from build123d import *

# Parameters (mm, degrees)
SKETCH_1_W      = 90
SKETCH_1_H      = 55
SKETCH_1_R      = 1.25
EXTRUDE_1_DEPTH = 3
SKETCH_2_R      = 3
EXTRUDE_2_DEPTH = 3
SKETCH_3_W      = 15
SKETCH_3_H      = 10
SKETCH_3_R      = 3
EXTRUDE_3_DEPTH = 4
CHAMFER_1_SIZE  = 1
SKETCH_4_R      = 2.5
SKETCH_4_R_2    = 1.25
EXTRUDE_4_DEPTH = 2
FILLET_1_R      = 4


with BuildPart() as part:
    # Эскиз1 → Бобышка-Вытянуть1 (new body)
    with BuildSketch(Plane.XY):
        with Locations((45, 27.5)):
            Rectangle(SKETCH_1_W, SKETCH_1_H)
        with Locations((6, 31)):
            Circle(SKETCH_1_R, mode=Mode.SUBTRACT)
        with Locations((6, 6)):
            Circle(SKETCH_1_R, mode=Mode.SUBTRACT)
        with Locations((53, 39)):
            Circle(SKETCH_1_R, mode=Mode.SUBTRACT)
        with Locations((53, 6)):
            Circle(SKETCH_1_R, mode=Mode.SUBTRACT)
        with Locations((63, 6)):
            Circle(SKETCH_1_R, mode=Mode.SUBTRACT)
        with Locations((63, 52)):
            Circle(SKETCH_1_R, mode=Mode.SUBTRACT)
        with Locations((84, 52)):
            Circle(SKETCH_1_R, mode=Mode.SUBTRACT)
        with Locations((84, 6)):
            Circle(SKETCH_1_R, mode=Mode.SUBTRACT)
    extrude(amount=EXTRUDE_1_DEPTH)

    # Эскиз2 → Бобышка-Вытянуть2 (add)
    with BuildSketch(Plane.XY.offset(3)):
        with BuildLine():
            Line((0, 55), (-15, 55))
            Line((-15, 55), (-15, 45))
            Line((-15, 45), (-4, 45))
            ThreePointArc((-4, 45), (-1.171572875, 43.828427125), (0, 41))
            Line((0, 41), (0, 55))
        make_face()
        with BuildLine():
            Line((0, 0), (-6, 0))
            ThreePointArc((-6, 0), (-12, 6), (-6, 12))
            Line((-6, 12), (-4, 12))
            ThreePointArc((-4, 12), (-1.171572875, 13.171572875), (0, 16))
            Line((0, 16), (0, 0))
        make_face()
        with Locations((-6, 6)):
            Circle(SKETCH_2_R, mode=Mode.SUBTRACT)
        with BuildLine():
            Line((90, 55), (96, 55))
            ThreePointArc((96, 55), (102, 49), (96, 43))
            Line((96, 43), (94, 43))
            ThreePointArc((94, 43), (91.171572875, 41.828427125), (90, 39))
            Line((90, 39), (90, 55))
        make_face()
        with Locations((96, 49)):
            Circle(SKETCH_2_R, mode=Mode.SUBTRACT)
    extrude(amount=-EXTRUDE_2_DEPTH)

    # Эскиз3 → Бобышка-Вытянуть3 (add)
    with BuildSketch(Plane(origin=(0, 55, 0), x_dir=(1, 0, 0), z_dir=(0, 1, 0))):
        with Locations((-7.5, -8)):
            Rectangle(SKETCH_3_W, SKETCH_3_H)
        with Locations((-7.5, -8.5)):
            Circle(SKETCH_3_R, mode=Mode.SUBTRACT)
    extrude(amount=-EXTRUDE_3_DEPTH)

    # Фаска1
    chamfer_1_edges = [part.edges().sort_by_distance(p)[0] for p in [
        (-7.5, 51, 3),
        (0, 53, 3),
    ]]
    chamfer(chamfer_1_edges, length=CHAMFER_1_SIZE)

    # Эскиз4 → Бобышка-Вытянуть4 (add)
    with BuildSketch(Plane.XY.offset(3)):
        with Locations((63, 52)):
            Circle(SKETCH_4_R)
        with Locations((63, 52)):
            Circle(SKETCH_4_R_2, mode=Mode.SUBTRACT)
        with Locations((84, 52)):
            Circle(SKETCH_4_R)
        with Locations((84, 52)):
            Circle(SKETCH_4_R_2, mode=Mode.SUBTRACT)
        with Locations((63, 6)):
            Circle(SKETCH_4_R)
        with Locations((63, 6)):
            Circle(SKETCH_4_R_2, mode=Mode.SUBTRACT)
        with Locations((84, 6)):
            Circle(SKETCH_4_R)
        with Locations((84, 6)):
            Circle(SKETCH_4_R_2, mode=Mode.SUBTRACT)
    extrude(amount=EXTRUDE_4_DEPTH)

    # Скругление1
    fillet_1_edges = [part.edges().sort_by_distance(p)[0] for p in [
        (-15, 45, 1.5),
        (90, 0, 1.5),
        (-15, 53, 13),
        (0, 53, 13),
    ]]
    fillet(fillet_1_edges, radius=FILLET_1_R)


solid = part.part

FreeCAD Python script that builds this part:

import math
import FreeCAD as App
import Part
import Sketcher

V = App.Vector
Q = App.Units.Quantity


def edges_at(feature, points):
    """Names of the edges that pass closest to the given points."""
    edges = feature.Shape.Edges
    near = lambda p: min(range(len(edges)), key=lambda i: edges[i].distToShape(Part.Vertex(*p))[0])
    return sorted({f"Edge{near(p) + 1}" for p in points})

doc = App.newDocument("Part")
params = doc.addObject("Spreadsheet::Sheet", "Params")
for row, (alias, value) in enumerate([
    ("sketch1_diameter", "2.5 mm"),
    ("sketch1_width", "90 mm"),
    ("sketch1_height", "55 mm"),
    ("pad1_length", "3 mm"),
    ("sketch2_diameter", "6 mm"),
    ("sketch2_radius", "4 mm"),
    ("sketch2_radius2", "6 mm"),
    ("sketch2_width", "15 mm"),
    ("sketch2_width2", "6 mm"),
    ("pad2_length", "3 mm"),
    ("sketch3_diameter", "6 mm"),
    ("sketch3_width", "15 mm"),
    ("sketch3_height", "10 mm"),
    ("pad3_length", "4 mm"),
    ("chamfer_size", "1 mm"),
    ("sketch4_diameter", "5 mm"),
    ("sketch4_diameter2", "2.5 mm"),
    ("pad4_length", "2 mm"),
    ("fillet_radius", "4 mm"),
], start=1):
    params.set(f"A{row}", alias)
    params.set(f"B{row}", "=" + value)
    params.setAlias(f"B{row}", alias)

body = doc.addObject("PartDesign::Body", "Body")

# Sketch on XY plane
sketch1 = body.newObject("Sketcher::SketchObject", "Sketch")
sketch1.AttachmentSupport = (doc.getObject("XY_Plane"), [""])
sketch1.MapMode = "FlatFace"
sketch1.addGeometry(Part.LineSegment(V(0, 55, 0), V(0, 0, 0)), False)
sketch1.addGeometry(Part.LineSegment(V(0, 0, 0), V(90, 0, 0)), False)
sketch1.addGeometry(Part.LineSegment(V(90, 0, 0), V(90, 55, 0)), False)
sketch1.addGeometry(Part.LineSegment(V(90, 55, 0), V(0, 55, 0)), False)
sketch1.addGeometry(Part.Circle(V(6, 6, 0), V(0, 0, 1), 1.25), False)
sketch1.addGeometry(Part.Circle(V(53, 6, 0), V(0, 0, 1), 1.25), False)
sketch1.addGeometry(Part.Circle(V(63, 6, 0), V(0, 0, 1), 1.25), False)
sketch1.addGeometry(Part.Circle(V(84, 6, 0), V(0, 0, 1), 1.25), False)
sketch1.addGeometry(Part.Circle(V(6, 31, 0), V(0, 0, 1), 1.25), False)
sketch1.addGeometry(Part.Circle(V(53, 39, 0), V(0, 0, 1), 1.25), False)
sketch1.addGeometry(Part.Circle(V(63, 52, 0), V(0, 0, 1), 1.25), False)
sketch1.addGeometry(Part.Circle(V(84, 52, 0), V(0, 0, 1), 1.25), False)
sketch1.addConstraint(Sketcher.Constraint("Coincident", 0, 2, 1, 1))
sketch1.addConstraint(Sketcher.Constraint("Coincident", 1, 2, 2, 1))
sketch1.addConstraint(Sketcher.Constraint("Coincident", 2, 2, 3, 1))
sketch1.addConstraint(Sketcher.Constraint("Coincident", 3, 2, 0, 1))
sketch1.addConstraint(Sketcher.Constraint("Vertical", 0))
sketch1.addConstraint(Sketcher.Constraint("Horizontal", 1))
sketch1.addConstraint(Sketcher.Constraint("Vertical", 2))
sketch1.addConstraint(Sketcher.Constraint("Horizontal", 3))
sketch1.addConstraint(Sketcher.Constraint("Coincident", 0, 2, -1, 1))
sketch1.addConstraint(Sketcher.Constraint("Equal", 4, 5))
sketch1.addConstraint(Sketcher.Constraint("Equal", 5, 6))
sketch1.addConstraint(Sketcher.Constraint("Equal", 6, 7))
sketch1.addConstraint(Sketcher.Constraint("Equal", 7, 8))
sketch1.addConstraint(Sketcher.Constraint("Equal", 8, 9))
sketch1.addConstraint(Sketcher.Constraint("Equal", 9, 10))
sketch1.addConstraint(Sketcher.Constraint("Equal", 10, 11))
sketch1.addConstraint(Sketcher.Constraint("Horizontal", 4, 3, 5, 3))
sketch1.addConstraint(Sketcher.Constraint("Horizontal", 5, 3, 6, 3))
sketch1.addConstraint(Sketcher.Constraint("Horizontal", 6, 3, 7, 3))
sketch1.addConstraint(Sketcher.Constraint("Horizontal", 10, 3, 11, 3))
sketch1.addConstraint(Sketcher.Constraint("Vertical", 4, 3, 8, 3))
sketch1.addConstraint(Sketcher.Constraint("Vertical", 5, 3, 9, 3))
sketch1.addConstraint(Sketcher.Constraint("Vertical", 6, 3, 10, 3))
sketch1.addConstraint(Sketcher.Constraint("Vertical", 7, 3, 11, 3))
sketch1.addConstraint(Sketcher.Constraint("Diameter", 4, Q("2.5 mm")))
sketch1.addConstraint(Sketcher.Constraint("DistanceX", 1, 1, 1, 2, Q("90 mm")))
sketch1.addConstraint(Sketcher.Constraint("DistanceY", 0, 2, 0, 1, Q("55 mm")))
sketch1.addConstraint(Sketcher.Constraint("DistanceX", -1, 1, 4, 3, Q("6 mm")))
sketch1.addConstraint(Sketcher.Constraint("DistanceY", -1, 1, 4, 3, Q("6 mm")))
sketch1.addConstraint(Sketcher.Constraint("DistanceX", -1, 1, 5, 3, Q("53 mm")))
sketch1.addConstraint(Sketcher.Constraint("DistanceX", -1, 1, 6, 3, Q("63 mm")))
sketch1.addConstraint(Sketcher.Constraint("DistanceX", -1, 1, 7, 3, Q("84 mm")))
sketch1.addConstraint(Sketcher.Constraint("DistanceY", -1, 1, 8, 3, Q("31 mm")))
sketch1.addConstraint(Sketcher.Constraint("DistanceY", -1, 1, 9, 3, Q("39 mm")))
sketch1.addConstraint(Sketcher.Constraint("DistanceY", -1, 1, 10, 3, Q("52 mm")))
sketch1.setExpression("Constraints[24]", "Params.sketch1_diameter")
sketch1.setExpression("Constraints[25]", "Params.sketch1_width")
sketch1.setExpression("Constraints[26]", "Params.sketch1_height")
pad1 = body.newObject("PartDesign::Pad", "Pad")
pad1.Profile = sketch1
pad1.setExpression("Length", "Params.pad1_length")

# Sketch on XY plane
sketch2 = body.newObject("Sketcher::SketchObject", "Sketch001")
sketch2.AttachmentSupport = (doc.getObject("XY_Plane"), [""])
sketch2.MapMode = "FlatFace"
sketch2.AttachmentOffset = App.Placement(V(0, 0, 3), App.Rotation())
sketch2.addGeometry(Part.LineSegment(V(0, 55, 0), V(-15, 55, 0)), False)
sketch2.addGeometry(Part.LineSegment(V(-15, 55, 0), V(-15, 45, 0)), False)
sketch2.addGeometry(Part.LineSegment(V(-15, 45, 0), V(-4, 45, 0)), False)
sketch2.addGeometry(Part.ArcOfCircle(Part.Circle(V(-4, 41, 0), V(0, 0, 1), 4), math.radians(0), math.radians(90)), False)
sketch2.addGeometry(Part.LineSegment(V(0, 41, 0), V(0, 55, 0)), False)
sketch2.addGeometry(Part.LineSegment(V(-6, 0, 0), V(0, 0, 0)), False)
sketch2.addGeometry(Part.LineSegment(V(0, 0, 0), V(0, 16, 0)), False)
sketch2.addGeometry(Part.ArcOfCircle(Part.Circle(V(-4, 16, 0), V(0, 0, 1), 4), math.radians(-90), math.radians(0)), False)
sketch2.addGeometry(Part.LineSegment(V(-4, 12, 0), V(-6, 12, 0)), False)
sketch2.addGeometry(Part.ArcOfCircle(Part.Circle(V(-6, 6, 0), V(0, 0, 1), 6), math.radians(90), math.radians(270)), False)
sketch2.addGeometry(Part.Circle(V(-6, 6, 0), V(0, 0, 1), 3), False)
sketch2.addGeometry(Part.LineSegment(V(96, 55, 0), V(90, 55, 0)), False)
sketch2.addGeometry(Part.LineSegment(V(90, 55, 0), V(90, 39, 0)), False)
sketch2.addGeometry(Part.ArcOfCircle(Part.Circle(V(94, 39, 0), V(0, 0, 1), 4), math.radians(90), math.radians(180)), False)
sketch2.addGeometry(Part.LineSegment(V(94, 43, 0), V(96, 43, 0)), False)
sketch2.addGeometry(Part.ArcOfCircle(Part.Circle(V(96, 49, 0), V(0, 0, 1), 6), math.radians(-90), math.radians(90)), False)
sketch2.addGeometry(Part.Circle(V(96, 49, 0), V(0, 0, 1), 3), False)
sketch2.addConstraint(Sketcher.Constraint("Coincident", 0, 2, 1, 1))
sketch2.addConstraint(Sketcher.Constraint("Coincident", 1, 2, 2, 1))
sketch2.addConstraint(Sketcher.Constraint("Tangent", 2, 2, 3, 2))
sketch2.addConstraint(Sketcher.Constraint("Tangent", 3, 1, 4, 1))
sketch2.addConstraint(Sketcher.Constraint("Coincident", 4, 2, 0, 1))
sketch2.addConstraint(Sketcher.Constraint("Coincident", 5, 2, 6, 1))
sketch2.addConstraint(Sketcher.Constraint("Tangent", 6, 2, 7, 2))
sketch2.addConstraint(Sketcher.Constraint("Tangent", 7, 1, 8, 1))
sketch2.addConstraint(Sketcher.Constraint("Tangent", 8, 2, 9, 1))
sketch2.addConstraint(Sketcher.Constraint("Tangent", 9, 2, 5, 1))
sketch2.addConstraint(Sketcher.Constraint("Coincident", 11, 2, 12, 1))
sketch2.addConstraint(Sketcher.Constraint("Tangent", 12, 2, 13, 2))
sketch2.addConstraint(Sketcher.Constraint("Tangent", 13, 1, 14, 1))
sketch2.addConstraint(Sketcher.Constraint("Tangent", 14, 2, 15, 1))
sketch2.addConstraint(Sketcher.Constraint("Tangent", 15, 2, 11, 1))
sketch2.addConstraint(Sketcher.Constraint("Horizontal", 0))
sketch2.addConstraint(Sketcher.Constraint("Vertical", 1))
sketch2.addConstraint(Sketcher.Constraint("Horizontal", 2))
sketch2.addConstraint(Sketcher.Constraint("Vertical", 4))
sketch2.addConstraint(Sketcher.Constraint("Horizontal", 5))
sketch2.addConstraint(Sketcher.Constraint("Vertical", 6))
sketch2.addConstraint(Sketcher.Constraint("Horizontal", 8))
sketch2.addConstraint(Sketcher.Constraint("Horizontal", 11))
sketch2.addConstraint(Sketcher.Constraint("Vertical", 12))
sketch2.addConstraint(Sketcher.Constraint("Horizontal", 14))
sketch2.addConstraint(Sketcher.Constraint("Coincident", 5, 2, -1, 1))
sketch2.addConstraint(Sketcher.Constraint("Coincident", 10, 3, 9, 3))
sketch2.addConstraint(Sketcher.Constraint("Coincident", 16, 3, 15, 3))
sketch2.addConstraint(Sketcher.Constraint("Equal", 3, 7))
sketch2.addConstraint(Sketcher.Constraint("Equal", 7, 13))
sketch2.addConstraint(Sketcher.Constraint("Equal", 9, 15))
sketch2.addConstraint(Sketcher.Constraint("Equal", 10, 16))
sketch2.addConstraint(Sketcher.Constraint("PointOnObject", 3, 1, -2))
sketch2.addConstraint(Sketcher.Constraint("Horizontal", 4, 2, 11, 2))
sketch2.addConstraint(Sketcher.Constraint("Equal", 5, 11))
sketch2.addConstraint(Sketcher.Constraint("Diameter", 10, Q("6 mm")))
sketch2.addConstraint(Sketcher.Constraint("Radius", 3, Q("4 mm")))
sketch2.addConstraint(Sketcher.Constraint("Radius", 9, Q("6 mm")))
sketch2.addConstraint(Sketcher.Constraint("DistanceX", 0, 2, 0, 1, Q("15 mm")))
sketch2.addConstraint(Sketcher.Constraint("DistanceX", 5, 1, 5, 2, Q("6 mm")))
sketch2.addConstraint(Sketcher.Constraint("DistanceY", 1, 2, 1, 1, Q("10 mm")))
sketch2.addConstraint(Sketcher.Constraint("DistanceY", -1, 1, 3, 3, Q("41 mm")))
sketch2.addConstraint(Sketcher.Constraint("DistanceX", -1, 1, 13, 3, Q("94 mm")))
sketch2.setExpression("Constraints[35]", "Params.sketch2_diameter")
sketch2.setExpression("Constraints[36]", "Params.sketch2_radius")
sketch2.setExpression("Constraints[37]", "Params.sketch2_radius2")
sketch2.setExpression("Constraints[38]", "Params.sketch2_width")
sketch2.setExpression("Constraints[39]", "Params.sketch2_width2")
pad2 = body.newObject("PartDesign::Pad", "Pad001")
pad2.Profile = sketch2
pad2.setExpression("Length", "Params.pad2_length")
pad2.Reversed = True

# Sketch on XZ plane
sketch3 = body.newObject("Sketcher::SketchObject", "Sketch002")
sketch3.AttachmentSupport = (doc.getObject("XZ_Plane"), [""])
sketch3.MapMode = "FlatFace"
sketch3.AttachmentOffset = App.Placement(V(0, 0, -55), App.Rotation())
sketch3.addGeometry(Part.LineSegment(V(-15, 3, 0), V(-15, 13, 0)), False)
sketch3.addGeometry(Part.LineSegment(V(-15, 13, 0), V(0, 13, 0)), False)
sketch3.addGeometry(Part.LineSegment(V(0, 13, 0), V(0, 3, 0)), False)
sketch3.addGeometry(Part.LineSegment(V(0, 3, 0), V(-15, 3, 0)), False)
sketch3.addGeometry(Part.Circle(V(-7.5, 8.5, 0), V(0, 0, 1), 3), False)
sketch3.addConstraint(Sketcher.Constraint("Coincident", 0, 2, 1, 1))
sketch3.addConstraint(Sketcher.Constraint("Coincident", 1, 2, 2, 1))
sketch3.addConstraint(Sketcher.Constraint("Coincident", 2, 2, 3, 1))
sketch3.addConstraint(Sketcher.Constraint("Coincident", 3, 2, 0, 1))
sketch3.addConstraint(Sketcher.Constraint("Vertical", 0))
sketch3.addConstraint(Sketcher.Constraint("Horizontal", 1))
sketch3.addConstraint(Sketcher.Constraint("Vertical", 2))
sketch3.addConstraint(Sketcher.Constraint("Horizontal", 3))
sketch3.addConstraint(Sketcher.Constraint("PointOnObject", 1, 2, -2))
sketch3.addConstraint(Sketcher.Constraint("Diameter", 4, Q("6 mm")))
sketch3.addConstraint(Sketcher.Constraint("DistanceX", 1, 1, 1, 2, Q("15 mm")))
sketch3.addConstraint(Sketcher.Constraint("DistanceY", 0, 1, 0, 2, Q("10 mm")))
sketch3.addConstraint(Sketcher.Constraint("DistanceY", -1, 1, 0, 2, Q("13 mm")))
sketch3.addConstraint(Sketcher.Constraint("DistanceX", 4, 3, -1, 1, Q("7.5 mm")))
sketch3.addConstraint(Sketcher.Constraint("DistanceY", -1, 1, 4, 3, Q("8.5 mm")))
sketch3.setExpression("Constraints[9]", "Params.sketch3_diameter")
sketch3.setExpression("Constraints[10]", "Params.sketch3_width")
sketch3.setExpression("Constraints[11]", "Params.sketch3_height")
pad3 = body.newObject("PartDesign::Pad", "Pad002")
pad3.Profile = sketch3
pad3.setExpression("Length", "Params.pad3_length")
doc.recompute()

chamfer = body.newObject("PartDesign::Chamfer", "Chamfer")
chamfer.Base = (pad3, edges_at(pad3, [(-7.5, 51, 3), (0, 53, 3)]))
chamfer.setExpression("Size", "Params.chamfer_size")

# Sketch on XY plane
sketch4 = body.newObject("Sketcher::SketchObject", "Sketch003")
sketch4.AttachmentSupport = (doc.getObject("XY_Plane"), [""])
sketch4.MapMode = "FlatFace"
sketch4.AttachmentOffset = App.Placement(V(0, 0, 3), App.Rotation())
sketch4.addGeometry(Part.Circle(V(63, 52, 0), V(0, 0, 1), 2.5), False)
sketch4.addGeometry(Part.Circle(V(63, 52, 0), V(0, 0, 1), 1.25), False)
sketch4.addGeometry(Part.Circle(V(84, 52, 0), V(0, 0, 1), 2.5), False)
sketch4.addGeometry(Part.Circle(V(84, 52, 0), V(0, 0, 1), 1.25), False)
sketch4.addGeometry(Part.Circle(V(63, 6, 0), V(0, 0, 1), 2.5), False)
sketch4.addGeometry(Part.Circle(V(63, 6, 0), V(0, 0, 1), 1.25), False)
sketch4.addGeometry(Part.Circle(V(84, 6, 0), V(0, 0, 1), 2.5), False)
sketch4.addGeometry(Part.Circle(V(84, 6, 0), V(0, 0, 1), 1.25), False)
sketch4.addConstraint(Sketcher.Constraint("Coincident", 1, 3, 0, 3))
sketch4.addConstraint(Sketcher.Constraint("Coincident", 3, 3, 2, 3))
sketch4.addConstraint(Sketcher.Constraint("Coincident", 5, 3, 4, 3))
sketch4.addConstraint(Sketcher.Constraint("Coincident", 7, 3, 6, 3))
sketch4.addConstraint(Sketcher.Constraint("Equal", 0, 2))
sketch4.addConstraint(Sketcher.Constraint("Equal", 1, 3))
sketch4.addConstraint(Sketcher.Constraint("Equal", 2, 4))
sketch4.addConstraint(Sketcher.Constraint("Equal", 3, 5))
sketch4.addConstraint(Sketcher.Constraint("Equal", 4, 6))
sketch4.addConstraint(Sketcher.Constraint("Equal", 5, 7))
sketch4.addConstraint(Sketcher.Constraint("Horizontal", 1, 3, 2, 3))
sketch4.addConstraint(Sketcher.Constraint("Horizontal", 5, 3, 6, 3))
sketch4.addConstraint(Sketcher.Constraint("Vertical", 1, 3, 4, 3))
sketch4.addConstraint(Sketcher.Constraint("Vertical", 3, 3, 6, 3))
sketch4.addConstraint(Sketcher.Constraint("Diameter", 0, Q("5 mm")))
sketch4.addConstraint(Sketcher.Constraint("Diameter", 1, Q("2.5 mm")))
sketch4.addConstraint(Sketcher.Constraint("DistanceX", -1, 1, 0, 3, Q("63 mm")))
sketch4.addConstraint(Sketcher.Constraint("DistanceY", -1, 1, 0, 3, Q("52 mm")))
sketch4.addConstraint(Sketcher.Constraint("DistanceX", -1, 1, 2, 3, Q("84 mm")))
sketch4.addConstraint(Sketcher.Constraint("DistanceY", -1, 1, 4, 3, Q("6 mm")))
sketch4.setExpression("Constraints[14]", "Params.sketch4_diameter")
sketch4.setExpression("Constraints[15]", "Params.sketch4_diameter2")
pad4 = body.newObject("PartDesign::Pad", "Pad003")
pad4.Profile = sketch4
pad4.setExpression("Length", "Params.pad4_length")
doc.recompute()

fillet = body.newObject("PartDesign::Fillet", "Fillet")
fillet.Base = (pad4, edges_at(pad4, [
    (-15, 45, 1.5),
    (90, 0, 1.5),
    (-15, 53, 13),
    (0, 53, 13),
]))
fillet.setExpression("Radius", "Params.fillet_radius")

doc.recompute()
